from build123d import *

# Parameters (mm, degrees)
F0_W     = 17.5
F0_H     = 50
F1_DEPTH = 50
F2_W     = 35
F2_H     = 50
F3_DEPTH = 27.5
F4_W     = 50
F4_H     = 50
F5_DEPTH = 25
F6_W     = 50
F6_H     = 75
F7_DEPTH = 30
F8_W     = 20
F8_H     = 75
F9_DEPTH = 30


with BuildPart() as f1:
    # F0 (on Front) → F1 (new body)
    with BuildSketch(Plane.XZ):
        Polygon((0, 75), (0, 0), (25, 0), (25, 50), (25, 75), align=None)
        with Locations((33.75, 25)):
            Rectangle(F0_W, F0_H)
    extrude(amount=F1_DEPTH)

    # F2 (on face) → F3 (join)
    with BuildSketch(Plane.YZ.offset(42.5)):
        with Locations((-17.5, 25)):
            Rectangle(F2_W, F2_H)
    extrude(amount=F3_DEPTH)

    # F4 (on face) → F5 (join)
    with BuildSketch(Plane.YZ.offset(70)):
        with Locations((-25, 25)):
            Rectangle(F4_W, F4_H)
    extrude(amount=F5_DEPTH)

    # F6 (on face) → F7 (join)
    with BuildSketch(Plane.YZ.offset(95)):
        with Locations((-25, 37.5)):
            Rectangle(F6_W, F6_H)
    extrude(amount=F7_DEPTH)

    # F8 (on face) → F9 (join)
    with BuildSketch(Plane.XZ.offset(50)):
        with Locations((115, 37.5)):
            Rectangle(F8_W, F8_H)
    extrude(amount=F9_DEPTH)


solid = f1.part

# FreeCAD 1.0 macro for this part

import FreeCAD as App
import Part
import Sketcher

V = App.Vector

doc = App.newDocument("Part")
body = doc.addObject("PartDesign::Body", "Body")

sketch1 = body.newObject("Sketcher::SketchObject", "Sketch")
sketch1.AttachmentSupport = (doc.getObject("XZ_Plane"), [""])
sketch1.MapMode = "FlatFace"
sketch1.addGeometry([
    Part.LineSegment(V(0, 75, 0), V(0, 0, 0)),
    Part.LineSegment(V(0, 0, 0), V(42.5, 0, 0)),
    Part.LineSegment(V(42.5, 0, 0), V(42.5, 50, 0)),
    Part.LineSegment(V(42.5, 50, 0), V(25, 50, 0)),
    Part.LineSegment(V(25, 50, 0), V(25, 75, 0)),
    Part.LineSegment(V(25, 75, 0), V(0, 75, 0)),
], False)
sketch1.addConstraint([
    Sketcher.Constraint("Coincident", 0, 2, 1, 1),
    Sketcher.Constraint("Coincident", 1, 2, 2, 1),
    Sketcher.Constraint("Coincident", 2, 2, 3, 1),
    Sketcher.Constraint("Coincident", 3, 2, 4, 1),
    Sketcher.Constraint("Coincident", 4, 2, 5, 1),
    Sketcher.Constraint("Coincident", 5, 2, 0, 1),
    Sketcher.Constraint("Vertical", 0),
    Sketcher.Constraint("Horizontal", 1),
    Sketcher.Constraint("Vertical", 2),
    Sketcher.Constraint("Horizontal", 3),
    Sketcher.Constraint("Vertical", 4),
    Sketcher.Constraint("Horizontal", 5),
    Sketcher.Constraint("Coincident", 0, 2, -1, 1),
    Sketcher.Constraint("Equal", 5, 4),
    Sketcher.Constraint("DistanceX", 5, 2, 5, 1, 25.0),
    Sketcher.Constraint("DistanceY", 0, 2, 0, 1, 75.0),
    Sketcher.Constraint("DistanceX", 1, 1, 1, 2, 42.5),
])
pad1 = body.newObject("PartDesign::Pad", "Pad")
pad1.Profile = sketch1
pad1.Length = 50

sketch2 = body.newObject("Sketcher::SketchObject", "Sketch001")
sketch2.AttachmentSupport = (doc.getObject("YZ_Plane"), [""])
sketch2.MapMode = "FlatFace"
sketch2.AttachmentOffset = App.Placement(V(0, 0, 42.5), App.Rotation())
sketch2.addGeometry([
    Part.LineSegment(V(-35, 50, 0), V(-35, 0, 0)),
    Part.LineSegment(V(-35, 0, 0), V(0, 0, 0)),
    Part.LineSegment(V(0, 0, 0), V(0, 50, 0)),
    Part.LineSegment(V(0, 50, 0), V(-35, 50, 0)),
], False)
sketch2.addConstraint([
    Sketcher.Constraint("Coincident", 0, 2, 1, 1),
    Sketcher.Constraint("Coincident", 1, 2, 2, 1),
    Sketcher.Constraint("Coincident", 2, 2, 3, 1),
    Sketcher.Constraint("Coincident", 3, 2, 0, 1),
    Sketcher.Constraint("Vertical", 0),
    Sketcher.Constraint("Horizontal", 1),
    Sketcher.Constraint("Vertical", 2),
    Sketcher.Constraint("Horizontal", 3),
    Sketcher.Constraint("Coincident", 1, 2, -1, 1),
    Sketcher.Constraint("DistanceX", 1, 1, 1, 2, 35.0),
    Sketcher.Constraint("DistanceY", 0, 2, 0, 1, 50.0),
])
pad2 = body.newObject("PartDesign::Pad", "Pad001")
pad2.Profile = sketch2
pad2.Length = 27.5

sketch3 = body.newObject("Sketcher::SketchObject", "Sketch002")
sketch3.AttachmentSupport = (doc.getObject("YZ_Plane"), [""])
sketch3.MapMode = "FlatFace"
sketch3.AttachmentOffset = App.Placement(V(0, 0, 70), App.Rotation())
sketch3.addGeometry([
    Part.LineSegment(V(-50, 50, 0), V(-50, 0, 0)),
    Part.LineSegment(V(-50, 0, 0), V(0, 0, 0)),
    Part.LineSegment(V(0, 0, 0), V(0, 50, 0)),
    Part.LineSegment(V(0, 50, 0), V(-50, 50, 0)),
], False)
sketch3.addConstraint([
    Sketcher.Constraint("Coincident", 0, 2, 1, 1),
    Sketcher.Constraint("Coincident", 1, 2, 2, 1),
    Sketcher.Constraint("Coincident", 2, 2, 3, 1),
    Sketcher.Constraint("Coincident", 3, 2, 0, 1),
    Sketcher.Constraint("Vertical", 0),
    Sketcher.Constraint("Horizontal", 1),
    Sketcher.Constraint("Vertical", 2),
    Sketcher.Constraint("Horizontal", 3),
    Sketcher.Constraint("Coincident", 1, 2, -1, 1),
    Sketcher.Constraint("Equal", 3, 0),
    Sketcher.Constraint("DistanceX", 1, 1, 1, 2, 50.0),
])
pad3 = body.newObject("PartDesign::Pad", "Pad002")
pad3.Profile = sketch3
pad3.Length = 25

sketch4 = body.newObject("Sketcher::SketchObject", "Sketch003")
sketch4.AttachmentSupport = (doc.getObject("YZ_Plane"), [""])
sketch4.MapMode = "FlatFace"
sketch4.AttachmentOffset = App.Placement(V(0, 0, 95), App.Rotation())
sketch4.addGeometry([
    Part.LineSegment(V(-50, 75, 0), V(-50, 0, 0)),
    Part.LineSegment(V(-50, 0, 0), V(0, 0, 0)),
    Part.LineSegment(V(0, 0, 0), V(0, 75, 0)),
    Part.LineSegment(V(0, 75, 0), V(-50, 75, 0)),
], False)
sketch4.addConstraint([
    Sketcher.Constraint("Coincident", 0, 2, 1, 1),
    Sketcher.Constraint("Coincident", 1, 2, 2, 1),
    Sketcher.Constraint("Coincident", 2, 2, 3, 1),
    Sketcher.Constraint("Coincident", 3, 2, 0, 1),
    Sketcher.Constraint("Vertical", 0),
    Sketcher.Constraint("Horizontal", 1),
    Sketcher.Constraint("Vertical", 2),
    Sketcher.Constraint("Horizontal", 3),
    Sketcher.Constraint("Coincident", 1, 2, -1, 1),
    Sketcher.Constraint("DistanceX", 1, 1, 1, 2, 50.0),
    Sketcher.Constraint("DistanceY", 0, 2, 0, 1, 75.0),
])
pad4 = body.newObject("PartDesign::Pad", "Pad003")
pad4.Profile = sketch4
pad4.Length = 30

sketch5 = body.newObject("Sketcher::SketchObject", "Sketch004")
sketch5.AttachmentSupport = (doc.getObject("XZ_Plane"), [""])
sketch5.MapMode = "FlatFace"
sketch5.AttachmentOffset = App.Placement(V(0, 0, 50), App.Rotation())
sketch5.addGeometry([
    Part.LineSegment(V(105, 75, 0), V(105, 0, 0)),
    Part.LineSegment(V(105, 0, 0), V(125, 0, 0)),
    Part.LineSegment(V(125, 0, 0), V(125, 75, 0)),
    Part.LineSegment(V(125, 75, 0), V(105, 75, 0)),
], False)
sketch5.addConstraint([
    Sketcher.Constraint("Coincident", 0, 2, 1, 1),
    Sketcher.Constraint("Coincident", 1, 2, 2, 1),
    Sketcher.Constraint("Coincident", 2, 2, 3, 1),
    Sketcher.Constraint("Coincident", 3, 2, 0, 1),
    Sketcher.Constraint("Vertical", 0),
    Sketcher.Constraint("Horizontal", 1),
    Sketcher.Constraint("Vertical", 2),
    Sketcher.Constraint("Horizontal", 3),
    Sketcher.Constraint("PointOnObject", 0, 2, -1),
    Sketcher.Constraint("DistanceX", 1, 1, 1, 2, 20.0),
    Sketcher.Constraint("DistanceY", 0, 2, 0, 1, 75.0),
    Sketcher.Constraint("DistanceX", -1, 1, 0, 2, 105.0),
])
pad5 = body.newObject("PartDesign::Pad", "Pad004")
pad5.Profile = sketch5
pad5.Length = 30

doc.recompute()
